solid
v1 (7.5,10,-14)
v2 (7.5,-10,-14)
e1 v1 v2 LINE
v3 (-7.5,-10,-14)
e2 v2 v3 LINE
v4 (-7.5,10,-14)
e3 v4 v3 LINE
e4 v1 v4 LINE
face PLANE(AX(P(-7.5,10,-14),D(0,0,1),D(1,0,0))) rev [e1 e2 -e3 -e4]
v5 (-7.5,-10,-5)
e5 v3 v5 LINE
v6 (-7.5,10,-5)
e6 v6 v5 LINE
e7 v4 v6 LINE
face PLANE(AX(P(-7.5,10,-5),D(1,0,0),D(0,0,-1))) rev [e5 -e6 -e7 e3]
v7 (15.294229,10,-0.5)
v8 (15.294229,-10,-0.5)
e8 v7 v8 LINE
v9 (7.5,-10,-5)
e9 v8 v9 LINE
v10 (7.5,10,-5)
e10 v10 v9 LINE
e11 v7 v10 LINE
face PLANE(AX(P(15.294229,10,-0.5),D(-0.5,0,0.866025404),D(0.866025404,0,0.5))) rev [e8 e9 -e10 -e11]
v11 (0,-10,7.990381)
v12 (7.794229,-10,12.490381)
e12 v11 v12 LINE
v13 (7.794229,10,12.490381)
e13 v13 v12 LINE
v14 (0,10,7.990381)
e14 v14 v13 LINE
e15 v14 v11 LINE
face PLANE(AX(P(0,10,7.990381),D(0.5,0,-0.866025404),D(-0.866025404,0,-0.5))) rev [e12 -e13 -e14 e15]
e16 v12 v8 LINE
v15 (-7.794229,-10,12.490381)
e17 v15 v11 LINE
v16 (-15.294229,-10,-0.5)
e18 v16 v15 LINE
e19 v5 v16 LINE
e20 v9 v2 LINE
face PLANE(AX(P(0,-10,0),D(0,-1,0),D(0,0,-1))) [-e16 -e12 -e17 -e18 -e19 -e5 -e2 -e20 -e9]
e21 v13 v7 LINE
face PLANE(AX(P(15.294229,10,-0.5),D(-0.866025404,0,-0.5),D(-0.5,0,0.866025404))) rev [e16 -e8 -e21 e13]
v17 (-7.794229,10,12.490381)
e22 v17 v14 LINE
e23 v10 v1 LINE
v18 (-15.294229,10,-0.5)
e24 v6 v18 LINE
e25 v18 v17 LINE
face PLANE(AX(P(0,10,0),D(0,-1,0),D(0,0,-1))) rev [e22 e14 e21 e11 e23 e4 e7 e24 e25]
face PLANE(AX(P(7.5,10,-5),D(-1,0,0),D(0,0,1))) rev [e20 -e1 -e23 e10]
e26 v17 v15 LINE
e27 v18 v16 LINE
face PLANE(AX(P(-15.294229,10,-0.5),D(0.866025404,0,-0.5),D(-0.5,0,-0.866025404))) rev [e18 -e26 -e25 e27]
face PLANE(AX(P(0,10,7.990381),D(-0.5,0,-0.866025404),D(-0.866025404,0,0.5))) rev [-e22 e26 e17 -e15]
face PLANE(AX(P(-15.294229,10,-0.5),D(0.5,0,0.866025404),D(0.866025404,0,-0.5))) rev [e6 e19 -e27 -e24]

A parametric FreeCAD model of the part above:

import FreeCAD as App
import Part
import Sketcher
Q = App.Units.Quantity

doc = App.newDocument("Part")
body = doc.addObject("PartDesign::Body", "Body")

# Sketch on XZ plane
sketch1 = body.newObject("Sketcher::SketchObject", "Sketch")
sketch1.AttachmentSupport = (doc.getObject("XZ_Plane"), [""])
sketch1.MapMode = "FlatFace"
sketch1.addGeometry([
    Part.LineSegment(App.Vector(15, 0, 0), App.Vector(8, -5, 0)),  # 0
    Part.LineSegment(App.Vector(8, -5, 0), App.Vector(8, -14, 0)),  # 1
    Part.LineSegment(App.Vector(8, -14, 0), App.Vector(-8, -14, 0)),  # 2
    Part.LineSegment(App.Vector(-8, -14, 0), App.Vector(-8, -5, 0)),  # 3
    Part.LineSegment(App.Vector(-8, -5, 0), App.Vector(-15, 0, 0)),  # 4
    Part.LineSegment(App.Vector(-15, 0, 0), App.Vector(-8, 12, 0)),  # 5
    Part.LineSegment(App.Vector(-8, 12, 0), App.Vector(0, 8, 0)),  # 6
    Part.LineSegment(App.Vector(0, 8, 0), App.Vector(8, 12, 0)),  # 7
    Part.LineSegment(App.Vector(8, 12, 0), App.Vector(15, 0, 0)),  # 8
], False)
sketch1.addConstraint([
    Sketcher.Constraint("Coincident", 0, 2, 1, 1),
    Sketcher.Constraint("Coincident", 1, 2, 2, 1),
    Sketcher.Constraint("Coincident", 2, 2, 3, 1),
    Sketcher.Constraint("Coincident", 3, 2, 4, 1),
    Sketcher.Constraint("Coincident", 4, 2, 5, 1),
    Sketcher.Constraint("Coincident", 5, 2, 6, 1),
    Sketcher.Constraint("Coincident", 6, 2, 7, 1),
    Sketcher.Constraint("Coincident", 7, 2, 8, 1),
    Sketcher.Constraint("Coincident", 8, 2, 0, 1),
    Sketcher.Constraint("Vertical", 1),
    Sketcher.Constraint("Horizontal", 2),
    Sketcher.Constraint("Vertical", 3),
    Sketcher.Constraint("Symmetric", 0, 2, 3, 2, -2),
    Sketcher.Constraint("Symmetric", 5, 2, 7, 2, -2),
    Sketcher.Constraint("Symmetric", 4, 2, 8, 2, -2),
    Sketcher.Constraint("PointOnObject", 6, 2, -2),
    Sketcher.Constraint("Perpendicular", 4, 5),
    Sketcher.Constraint("Perpendicular", 5, 6),
    Sketcher.Constraint("Equal", 4, 6),
    Sketcher.Constraint("DistanceX", 2, 2, 2, 1, 15.0),
    Sketcher.Constraint("DistanceY", 1, 2, 1, 1, 9.0),
    Sketcher.Constraint("Angle", 0, Q("-150 deg")),
    Sketcher.Constraint("Distance", 0, 9.0),
    Sketcher.Constraint("DistanceY", 0, 2, -1, 1, 5.0),
])
pad1 = body.newObject("PartDesign::Pad", "Pad")
pad1.Profile = sketch1
pad1.Length = 20
pad1.Midplane = True

doc.recompute()
